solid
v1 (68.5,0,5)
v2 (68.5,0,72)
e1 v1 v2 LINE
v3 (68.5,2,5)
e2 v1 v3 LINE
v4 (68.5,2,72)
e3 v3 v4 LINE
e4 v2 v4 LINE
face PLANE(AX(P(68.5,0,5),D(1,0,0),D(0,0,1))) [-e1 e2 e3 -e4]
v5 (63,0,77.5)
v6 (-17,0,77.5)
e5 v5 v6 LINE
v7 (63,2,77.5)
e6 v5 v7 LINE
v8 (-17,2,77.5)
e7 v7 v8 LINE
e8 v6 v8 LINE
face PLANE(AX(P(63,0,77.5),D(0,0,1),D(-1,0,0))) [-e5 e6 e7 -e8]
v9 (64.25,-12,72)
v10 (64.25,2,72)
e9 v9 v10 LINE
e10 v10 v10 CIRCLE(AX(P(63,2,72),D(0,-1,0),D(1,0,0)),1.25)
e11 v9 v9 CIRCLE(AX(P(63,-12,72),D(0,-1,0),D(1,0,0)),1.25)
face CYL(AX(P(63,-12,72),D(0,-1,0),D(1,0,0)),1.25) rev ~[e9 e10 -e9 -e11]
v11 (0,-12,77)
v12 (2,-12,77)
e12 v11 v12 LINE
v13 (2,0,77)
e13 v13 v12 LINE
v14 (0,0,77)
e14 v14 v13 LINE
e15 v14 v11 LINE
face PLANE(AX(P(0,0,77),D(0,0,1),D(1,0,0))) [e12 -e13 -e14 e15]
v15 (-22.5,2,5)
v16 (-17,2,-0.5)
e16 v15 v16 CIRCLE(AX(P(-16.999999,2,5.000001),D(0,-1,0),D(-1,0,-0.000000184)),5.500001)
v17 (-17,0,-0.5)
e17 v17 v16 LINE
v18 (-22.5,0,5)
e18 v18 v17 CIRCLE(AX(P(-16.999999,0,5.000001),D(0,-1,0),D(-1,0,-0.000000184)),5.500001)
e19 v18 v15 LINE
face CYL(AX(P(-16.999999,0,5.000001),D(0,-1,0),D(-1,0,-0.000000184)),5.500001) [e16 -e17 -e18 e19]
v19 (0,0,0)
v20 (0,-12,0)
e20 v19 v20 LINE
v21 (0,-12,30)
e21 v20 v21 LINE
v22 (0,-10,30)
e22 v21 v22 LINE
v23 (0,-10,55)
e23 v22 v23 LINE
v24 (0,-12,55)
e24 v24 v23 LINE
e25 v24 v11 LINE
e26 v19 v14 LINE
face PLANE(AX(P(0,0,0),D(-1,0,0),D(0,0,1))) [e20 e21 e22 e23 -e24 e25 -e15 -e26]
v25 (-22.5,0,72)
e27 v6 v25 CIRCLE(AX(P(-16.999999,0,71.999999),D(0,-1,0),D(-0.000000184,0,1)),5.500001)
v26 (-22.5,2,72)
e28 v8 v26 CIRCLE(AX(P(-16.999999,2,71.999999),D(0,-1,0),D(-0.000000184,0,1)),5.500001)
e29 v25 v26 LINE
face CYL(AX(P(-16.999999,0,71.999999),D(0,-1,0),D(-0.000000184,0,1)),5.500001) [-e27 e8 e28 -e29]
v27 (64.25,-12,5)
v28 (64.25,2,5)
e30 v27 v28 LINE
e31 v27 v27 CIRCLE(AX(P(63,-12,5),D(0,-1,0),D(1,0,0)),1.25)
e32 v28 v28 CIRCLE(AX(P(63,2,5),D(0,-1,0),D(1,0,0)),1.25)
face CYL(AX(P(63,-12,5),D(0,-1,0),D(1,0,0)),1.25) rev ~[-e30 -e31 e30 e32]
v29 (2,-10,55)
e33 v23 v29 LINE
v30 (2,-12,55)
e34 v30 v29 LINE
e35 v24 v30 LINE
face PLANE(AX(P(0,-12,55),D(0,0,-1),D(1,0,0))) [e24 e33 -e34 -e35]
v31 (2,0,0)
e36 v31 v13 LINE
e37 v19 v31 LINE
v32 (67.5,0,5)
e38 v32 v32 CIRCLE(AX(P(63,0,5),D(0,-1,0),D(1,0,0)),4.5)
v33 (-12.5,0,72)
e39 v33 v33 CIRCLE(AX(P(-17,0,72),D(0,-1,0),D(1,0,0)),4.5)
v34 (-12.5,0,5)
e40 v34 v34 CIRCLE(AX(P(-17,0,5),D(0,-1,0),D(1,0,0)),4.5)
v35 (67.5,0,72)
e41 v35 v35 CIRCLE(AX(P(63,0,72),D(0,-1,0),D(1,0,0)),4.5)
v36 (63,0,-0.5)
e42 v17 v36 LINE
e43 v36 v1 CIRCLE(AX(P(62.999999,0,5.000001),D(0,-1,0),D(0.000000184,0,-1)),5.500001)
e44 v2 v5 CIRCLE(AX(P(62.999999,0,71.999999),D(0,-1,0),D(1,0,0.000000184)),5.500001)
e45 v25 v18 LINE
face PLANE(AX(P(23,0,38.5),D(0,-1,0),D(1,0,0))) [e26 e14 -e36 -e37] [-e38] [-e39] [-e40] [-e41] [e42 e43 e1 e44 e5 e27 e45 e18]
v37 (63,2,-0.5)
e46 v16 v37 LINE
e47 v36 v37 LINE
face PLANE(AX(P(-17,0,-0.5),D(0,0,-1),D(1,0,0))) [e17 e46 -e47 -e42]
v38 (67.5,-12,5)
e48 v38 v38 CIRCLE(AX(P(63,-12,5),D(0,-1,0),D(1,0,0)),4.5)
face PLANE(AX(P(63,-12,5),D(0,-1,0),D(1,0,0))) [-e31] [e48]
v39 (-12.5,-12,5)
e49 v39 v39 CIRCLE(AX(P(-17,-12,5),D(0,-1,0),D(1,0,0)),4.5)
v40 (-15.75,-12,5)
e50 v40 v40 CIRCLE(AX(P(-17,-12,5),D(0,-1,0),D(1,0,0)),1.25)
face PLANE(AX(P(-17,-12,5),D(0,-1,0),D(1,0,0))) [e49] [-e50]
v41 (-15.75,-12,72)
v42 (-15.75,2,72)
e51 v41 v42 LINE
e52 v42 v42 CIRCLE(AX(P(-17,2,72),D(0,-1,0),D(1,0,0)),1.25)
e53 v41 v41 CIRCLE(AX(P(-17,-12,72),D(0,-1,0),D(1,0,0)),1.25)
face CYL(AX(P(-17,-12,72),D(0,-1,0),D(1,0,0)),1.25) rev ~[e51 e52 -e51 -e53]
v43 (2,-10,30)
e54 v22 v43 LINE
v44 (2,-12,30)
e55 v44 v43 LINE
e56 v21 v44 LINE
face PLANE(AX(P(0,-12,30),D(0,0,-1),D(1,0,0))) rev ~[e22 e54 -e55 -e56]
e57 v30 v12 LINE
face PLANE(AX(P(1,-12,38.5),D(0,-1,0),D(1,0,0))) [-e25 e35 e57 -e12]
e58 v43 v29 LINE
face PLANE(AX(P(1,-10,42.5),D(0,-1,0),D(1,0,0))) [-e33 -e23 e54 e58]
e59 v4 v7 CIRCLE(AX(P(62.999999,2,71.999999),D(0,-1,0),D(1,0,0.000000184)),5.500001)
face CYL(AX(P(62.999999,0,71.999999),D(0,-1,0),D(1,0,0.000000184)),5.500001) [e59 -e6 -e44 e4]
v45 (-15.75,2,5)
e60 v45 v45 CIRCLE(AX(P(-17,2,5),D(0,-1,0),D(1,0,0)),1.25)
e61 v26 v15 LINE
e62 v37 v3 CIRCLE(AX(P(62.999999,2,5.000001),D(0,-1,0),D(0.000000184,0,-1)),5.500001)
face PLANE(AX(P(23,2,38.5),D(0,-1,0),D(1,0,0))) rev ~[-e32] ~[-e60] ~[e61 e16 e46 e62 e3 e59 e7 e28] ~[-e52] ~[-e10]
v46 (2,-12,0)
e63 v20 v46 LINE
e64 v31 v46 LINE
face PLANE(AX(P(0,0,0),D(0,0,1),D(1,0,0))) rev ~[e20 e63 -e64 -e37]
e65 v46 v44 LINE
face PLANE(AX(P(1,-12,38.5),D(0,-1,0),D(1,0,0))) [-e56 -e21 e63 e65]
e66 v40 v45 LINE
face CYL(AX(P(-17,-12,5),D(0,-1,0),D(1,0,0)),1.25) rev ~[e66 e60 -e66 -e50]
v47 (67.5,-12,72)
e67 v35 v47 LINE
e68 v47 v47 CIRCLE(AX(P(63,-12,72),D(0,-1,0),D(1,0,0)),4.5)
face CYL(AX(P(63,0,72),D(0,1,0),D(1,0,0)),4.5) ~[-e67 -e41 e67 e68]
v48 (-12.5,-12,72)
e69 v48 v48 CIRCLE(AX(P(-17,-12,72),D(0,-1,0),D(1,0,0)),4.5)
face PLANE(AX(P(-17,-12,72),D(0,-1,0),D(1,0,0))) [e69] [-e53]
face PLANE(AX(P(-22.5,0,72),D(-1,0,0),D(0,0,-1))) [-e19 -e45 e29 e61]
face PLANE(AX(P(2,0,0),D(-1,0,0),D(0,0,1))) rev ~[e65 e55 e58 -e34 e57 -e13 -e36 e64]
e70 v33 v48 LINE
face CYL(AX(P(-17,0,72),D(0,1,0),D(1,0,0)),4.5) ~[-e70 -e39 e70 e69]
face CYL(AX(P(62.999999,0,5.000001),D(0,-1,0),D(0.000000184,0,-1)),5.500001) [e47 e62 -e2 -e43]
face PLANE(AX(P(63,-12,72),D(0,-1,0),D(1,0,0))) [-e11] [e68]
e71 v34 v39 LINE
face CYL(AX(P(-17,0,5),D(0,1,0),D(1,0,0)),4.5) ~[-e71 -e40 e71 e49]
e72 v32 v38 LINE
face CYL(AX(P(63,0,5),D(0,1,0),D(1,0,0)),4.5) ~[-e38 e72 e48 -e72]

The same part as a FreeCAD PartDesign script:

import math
import FreeCAD as App
import Part
import Sketcher

V = App.Vector


def add_polygon(sketch, points):
    """Adds a closed chain of lines whose ends are joined by coincident constraints."""
    first, n = sketch.GeometryCount, len(points)
    for a, b in zip(points, points[1:] + points[:1]):
        sketch.addGeometry(Part.LineSegment(App.Vector(*a, 0), App.Vector(*b, 0)), False)
    for i in range(n):
        sketch.addConstraint(Sketcher.Constraint("Coincident", first + i, 2, first + (i + 1) % n, 1))

doc = App.newDocument("Part")
params = doc.addObject("Spreadsheet::Sheet", "Params")
for row, (alias, value) in enumerate([
    ("sketch1_radius", "5.500001 mm"),
    ("sketch1_width", "80 mm"),
    ("sketch1_height", "67 mm"),
    ("pad1_length", "2 mm"),
    ("sketch2_diameter", "9 mm"),
    ("sketch2_width", "2 mm"),
    ("sketch2_height", "77 mm"),
    ("pad2_length", "12 mm"),
    ("sketch3_diameter", "2.5 mm"),
    ("pocket1_length", "25 mm"),
    ("sketch4_width", "2 mm"),
    ("sketch4_height", "25 mm"),
    ("pocket2_length", "2 mm"),
], start=1):
    params.set(f"A{row}", alias)
    params.set(f"B{row}", "=" + value)
    params.setAlias(f"B{row}", alias)

body = doc.addObject("PartDesign::Body", "Body")

# Sketch on XZ plane
sketch1 = body.newObject("Sketcher::SketchObject", "Sketch")
sketch1.AttachmentSupport = (doc.getObject("XZ_Plane"), [""])
sketch1.MapMode = "FlatFace"
sketch1.addGeometry(Part.LineSegment(V(63, 77.5, 0), V(-17, 77.5, 0)), False)
sketch1.addGeometry(Part.ArcOfCircle(Part.Circle(V(-16.999999, 71.999999, 0), V(0, 0, 1), 5.500001), math.radians(90.000011), math.radians(179.999989)), False)
sketch1.addGeometry(Part.LineSegment(V(-22.5, 72, 0), V(-22.5, 5, 0)), False)
sketch1.addGeometry(Part.ArcOfCircle(Part.Circle(V(-16.999999, 5.000001, 0), V(0, 0, 1), 5.500001), math.radians(-179.999989), math.radians(-90.000011)), False)
sketch1.addGeometry(Part.LineSegment(V(-17, -0.5, 0), V(63, -0.5, 0)), False)
sketch1.addGeometry(Part.ArcOfCircle(Part.Circle(V(62.999999, 5.000001, 0), V(0, 0, 1), 5.500001), math.radians(-89.999989), math.radians(-0.000011)), False)
sketch1.addGeometry(Part.LineSegment(V(68.5, 5, 0), V(68.5, 72, 0)), False)
sketch1.addGeometry(Part.ArcOfCircle(Part.Circle(V(62.999999, 71.999999, 0), V(0, 0, 1), 5.500001), math.radians(0.000011), math.radians(89.999989)), False)
sketch1.addConstraint(Sketcher.Constraint("Tangent", 0, 2, 1, 1))
sketch1.addConstraint(Sketcher.Constraint("Tangent", 1, 2, 2, 1))
sketch1.addConstraint(Sketcher.Constraint("Tangent", 2, 2, 3, 1))
sketch1.addConstraint(Sketcher.Constraint("Tangent", 3, 2, 4, 1))
sketch1.addConstraint(Sketcher.Constraint("Tangent", 4, 2, 5, 1))
sketch1.addConstraint(Sketcher.Constraint("Tangent", 5, 2, 6, 1))
sketch1.addConstraint(Sketcher.Constraint("Tangent", 6, 2, 7, 1))
sketch1.addConstraint(Sketcher.Constraint("Tangent", 7, 2, 0, 1))
sketch1.addConstraint(Sketcher.Constraint("Horizontal", 0))
sketch1.addConstraint(Sketcher.Constraint("Vertical", 2))
sketch1.addConstraint(Sketcher.Constraint("Horizontal", 4))
sketch1.addConstraint(Sketcher.Constraint("Vertical", 6))
sketch1.addConstraint(Sketcher.Constraint("Equal", 1, 3))
sketch1.addConstraint(Sketcher.Constraint("Equal", 3, 5))
sketch1.addConstraint(Sketcher.Constraint("Equal", 5, 7))
sketch1.addConstraint(Sketcher.Constraint("Radius", 1, 5.500001))
sketch1.addConstraint(Sketcher.Constraint("DistanceX", 0, 2, 0, 1, 80.0))
sketch1.addConstraint(Sketcher.Constraint("DistanceY", 2, 2, 2, 1, 67.0))
sketch1.addConstraint(Sketcher.Constraint("DistanceX", 1, 3, -1, 1, 16.999999))
sketch1.addConstraint(Sketcher.Constraint("DistanceY", -1, 1, 1, 3, 71.999999))
sketch1.setExpression("Constraints[15]", "Params.sketch1_radius")
sketch1.setExpression("Constraints[16]", "Params.sketch1_width")
sketch1.setExpression("Constraints[17]", "Params.sketch1_height")
pad1 = body.newObject("PartDesign::Pad", "Pad")
pad1.Profile = sketch1
pad1.setExpression("Length", "Params.pad1_length")
pad1.Reversed = True

# Sketch on XZ plane
sketch2 = body.newObject("Sketcher::SketchObject", "Sketch001")
sketch2.AttachmentSupport = (doc.getObject("XZ_Plane"), [""])
sketch2.MapMode = "FlatFace"
sketch2.addGeometry(Part.Circle(V(-17, 72, 0), V(0, 0, 1), 4.5), False)  # 0
sketch2.addGeometry(Part.Circle(V(63, 72, 0), V(0, 0, 1), 4.5), False)  # 1
sketch2.addGeometry(Part.Circle(V(-17, 5, 0), V(0, 0, 1), 4.5), False)  # 2
sketch2.addGeometry(Part.Circle(V(63, 5, 0), V(0, 0, 1), 4.5), False)  # 3
add_polygon(sketch2, [(0, 77), (0, 0), (2, 0), (2, 77)])  # lines 4-7
sketch2.addConstraint(Sketcher.Constraint("Vertical", 4))
sketch2.addConstraint(Sketcher.Constraint("Horizontal", 5))
sketch2.addConstraint(Sketcher.Constraint("Vertical", 6))
sketch2.addConstraint(Sketcher.Constraint("Horizontal", 7))
sketch2.addConstraint(Sketcher.Constraint("Coincident", 4, 2, -1, 1))
sketch2.addConstraint(Sketcher.Constraint("Equal", 0, 1))
sketch2.addConstraint(Sketcher.Constraint("Equal", 1, 2))
sketch2.addConstraint(Sketcher.Constraint("Equal", 2, 3))
sketch2.addConstraint(Sketcher.Constraint("Horizontal", 0, 3, 1, 3))
sketch2.addConstraint(Sketcher.Constraint("Horizontal", 2, 3, 3, 3))
sketch2.addConstraint(Sketcher.Constraint("Vertical", 0, 3, 2, 3))
sketch2.addConstraint(Sketcher.Constraint("Vertical", 1, 3, 3, 3))
sketch2.addConstraint(Sketcher.Constraint("Diameter", 0, 9.0))
sketch2.addConstraint(Sketcher.Constraint("DistanceX", 5, 1, 5, 2, 2.0))
sketch2.addConstraint(Sketcher.Constraint("DistanceY", 4, 2, 4, 1, 77.0))
sketch2.addConstraint(Sketcher.Constraint("DistanceX", 0, 3, -1, 1, 17.0))
sketch2.addConstraint(Sketcher.Constraint("DistanceY", -1, 1, 0, 3, 72.0))
sketch2.addConstraint(Sketcher.Constraint("DistanceX", -1, 1, 1, 3, 63.0))
sketch2.addConstraint(Sketcher.Constraint("DistanceY", -1, 1, 2, 3, 5.0))
sketch2.setExpression("Constraints[16]", "Params.sketch2_diameter")
sketch2.setExpression("Constraints[17]", "Params.sketch2_width")
sketch2.setExpression("Constraints[18]", "Params.sketch2_height")
pad2 = body.newObject("PartDesign::Pad", "Pad001")
pad2.Profile = sketch2
pad2.setExpression("Length", "Params.pad2_length")

# Sketch on XZ plane
sketch3 = body.newObject("Sketcher::SketchObject", "Sketch002")
sketch3.AttachmentSupport = (doc.getObject("XZ_Plane"), [""])
sketch3.MapMode = "FlatFace"
sketch3.AttachmentOffset = App.Placement(V(0, 0, 12), App.Rotation())
sketch3.addGeometry(Part.Circle(V(-17, 72, 0), V(0, 0, 1), 1.25), False)
sketch3.addGeometry(Part.Circle(V(63, 72, 0), V(0, 0, 1), 1.25), False)
sketch3.addGeometry(Part.Circle(V(63, 5, 0), V(0, 0, 1), 1.25), False)
sketch3.addGeometry(Part.Circle(V(-17, 5, 0), V(0, 0, 1), 1.25), False)
sketch3.addConstraint(Sketcher.Constraint("Equal", 0, 1))
sketch3.addConstraint(Sketcher.Constraint("Equal", 1, 2))
sketch3.addConstraint(Sketcher.Constraint("Equal", 2, 3))
sketch3.addConstraint(Sketcher.Constraint("Horizontal", 0, 3, 1, 3))
sketch3.addConstraint(Sketcher.Constraint("Horizontal", 2, 3, 3, 3))
sketch3.addConstraint(Sketcher.Constraint("Vertical", 1, 3, 2, 3))
sketch3.addConstraint(Sketcher.Constraint("Vertical", 0, 3, 3, 3))
sketch3.addConstraint(Sketcher.Constraint("Diameter", 0, 2.5))
sketch3.addConstraint(Sketcher.Constraint("DistanceX", 0, 3, -1, 1, 17.0))
sketch3.addConstraint(Sketcher.Constraint("DistanceY", -1, 1, 0, 3, 72.0))
sketch3.addConstraint(Sketcher.Constraint("DistanceX", -1, 1, 1, 3, 63.0))
sketch3.addConstraint(Sketcher.Constraint("DistanceY", -1, 1, 2, 3, 5.0))
sketch3.setExpression("Constraints[7]", "Params.sketch3_diameter")
pocket1 = body.newObject("PartDesign::Pocket", "Pocket")
pocket1.Profile = sketch3
pocket1.setExpression("Length", "Params.pocket1_length")

# Sketch on XZ plane
sketch4 = body.newObject("Sketcher::SketchObject", "Sketch003")
sketch4.AttachmentSupport = (doc.getObject("XZ_Plane"), [""])
sketch4.MapMode = "FlatFace"
sketch4.AttachmentOffset = App.Placement(V(0, 0, 12), App.Rotation())
add_polygon(sketch4, [(0, 55), (0, 30), (2, 30), (2, 55)])  # lines 0-3
sketch4.addConstraint(Sketcher.Constraint("Vertical", 0))
sketch4.addConstraint(Sketcher.Constraint("Horizontal", 1))
sketch4.addConstraint(Sketcher.Constraint("Vertical", 2))
sketch4.addConstraint(Sketcher.Constraint("Horizontal", 3))
sketch4.addConstraint(Sketcher.Constraint("PointOnObject", 0, 2, -2))
sketch4.addConstraint(Sketcher.Constraint("DistanceX", 1, 1, 1, 2, 2.0))
sketch4.addConstraint(Sketcher.Constraint("DistanceY", 0, 2, 0, 1, 25.0))
sketch4.addConstraint(Sketcher.Constraint("DistanceY", -1, 1, 0, 2, 30.0))
sketch4.setExpression("Constraints[9]", "Params.sketch4_width")
sketch4.setExpression("Constraints[10]", "Params.sketch4_height")
pocket2 = body.newObject("PartDesign::Pocket", "Pocket001")
pocket2.Profile = sketch4
pocket2.setExpression("Length", "Params.pocket2_length")

doc.recompute()
